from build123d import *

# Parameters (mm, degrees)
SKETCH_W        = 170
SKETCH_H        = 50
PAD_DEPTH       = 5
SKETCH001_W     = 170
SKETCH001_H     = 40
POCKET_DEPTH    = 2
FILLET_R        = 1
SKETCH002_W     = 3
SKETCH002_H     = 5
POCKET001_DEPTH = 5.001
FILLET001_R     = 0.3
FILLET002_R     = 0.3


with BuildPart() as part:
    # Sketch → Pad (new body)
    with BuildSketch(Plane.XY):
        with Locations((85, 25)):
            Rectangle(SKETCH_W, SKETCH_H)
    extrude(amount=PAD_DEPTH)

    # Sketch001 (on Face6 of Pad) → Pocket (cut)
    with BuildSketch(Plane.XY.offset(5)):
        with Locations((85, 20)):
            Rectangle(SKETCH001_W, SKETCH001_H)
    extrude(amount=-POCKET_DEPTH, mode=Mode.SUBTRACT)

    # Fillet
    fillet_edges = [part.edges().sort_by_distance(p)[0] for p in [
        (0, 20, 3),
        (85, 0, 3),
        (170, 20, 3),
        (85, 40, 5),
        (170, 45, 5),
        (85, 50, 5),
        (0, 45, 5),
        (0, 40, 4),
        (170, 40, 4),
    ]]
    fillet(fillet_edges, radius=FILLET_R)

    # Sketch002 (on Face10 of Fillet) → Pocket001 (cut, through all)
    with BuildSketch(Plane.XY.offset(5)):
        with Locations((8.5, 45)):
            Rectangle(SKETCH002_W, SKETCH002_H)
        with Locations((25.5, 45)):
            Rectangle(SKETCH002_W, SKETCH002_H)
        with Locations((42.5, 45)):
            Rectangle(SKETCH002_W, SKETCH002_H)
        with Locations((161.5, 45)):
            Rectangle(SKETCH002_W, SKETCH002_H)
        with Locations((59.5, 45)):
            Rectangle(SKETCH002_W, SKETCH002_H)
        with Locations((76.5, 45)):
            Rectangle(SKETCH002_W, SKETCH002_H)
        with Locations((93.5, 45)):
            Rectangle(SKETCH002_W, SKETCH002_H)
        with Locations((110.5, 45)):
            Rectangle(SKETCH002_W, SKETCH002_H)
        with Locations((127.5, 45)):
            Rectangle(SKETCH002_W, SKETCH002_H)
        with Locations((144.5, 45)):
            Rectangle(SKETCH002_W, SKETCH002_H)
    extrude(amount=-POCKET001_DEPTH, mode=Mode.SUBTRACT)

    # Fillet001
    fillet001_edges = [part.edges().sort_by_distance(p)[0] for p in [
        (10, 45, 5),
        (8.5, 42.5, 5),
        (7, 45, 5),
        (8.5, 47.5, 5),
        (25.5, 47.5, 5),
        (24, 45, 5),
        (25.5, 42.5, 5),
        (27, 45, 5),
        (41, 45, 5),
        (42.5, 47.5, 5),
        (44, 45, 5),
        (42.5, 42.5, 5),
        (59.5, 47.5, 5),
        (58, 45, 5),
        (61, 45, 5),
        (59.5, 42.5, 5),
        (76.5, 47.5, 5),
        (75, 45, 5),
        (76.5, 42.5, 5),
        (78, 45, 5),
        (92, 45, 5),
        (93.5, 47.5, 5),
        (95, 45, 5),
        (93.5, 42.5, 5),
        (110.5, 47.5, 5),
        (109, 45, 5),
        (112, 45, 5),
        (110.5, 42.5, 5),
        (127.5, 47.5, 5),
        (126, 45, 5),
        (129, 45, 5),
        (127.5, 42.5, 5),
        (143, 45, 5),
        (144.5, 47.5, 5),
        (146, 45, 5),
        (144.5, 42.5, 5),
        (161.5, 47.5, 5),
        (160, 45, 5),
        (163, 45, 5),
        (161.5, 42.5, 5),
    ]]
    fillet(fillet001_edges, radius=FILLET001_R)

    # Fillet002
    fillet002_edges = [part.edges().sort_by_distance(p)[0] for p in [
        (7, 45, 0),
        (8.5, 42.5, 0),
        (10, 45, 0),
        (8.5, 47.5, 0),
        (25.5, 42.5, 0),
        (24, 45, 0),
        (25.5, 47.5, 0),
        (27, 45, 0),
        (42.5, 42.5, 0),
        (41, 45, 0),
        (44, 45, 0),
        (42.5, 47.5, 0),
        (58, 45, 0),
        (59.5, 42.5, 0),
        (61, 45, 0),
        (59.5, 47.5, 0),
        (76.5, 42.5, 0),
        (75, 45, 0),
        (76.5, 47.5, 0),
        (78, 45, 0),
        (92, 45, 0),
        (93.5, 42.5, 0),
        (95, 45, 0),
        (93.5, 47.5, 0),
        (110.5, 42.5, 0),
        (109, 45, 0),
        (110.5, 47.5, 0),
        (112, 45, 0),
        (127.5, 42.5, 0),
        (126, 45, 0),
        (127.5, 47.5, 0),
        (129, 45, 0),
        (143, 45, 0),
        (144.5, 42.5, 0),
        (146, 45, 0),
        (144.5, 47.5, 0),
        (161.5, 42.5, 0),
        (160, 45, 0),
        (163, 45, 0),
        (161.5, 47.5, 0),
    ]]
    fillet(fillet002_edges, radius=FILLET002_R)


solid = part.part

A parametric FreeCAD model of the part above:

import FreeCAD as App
import Part
import Sketcher

V = App.Vector


def edges_at(feature, points):
    """Names of the edges that pass closest to the given points."""
    edges = feature.Shape.Edges
    near = lambda p: min(range(len(edges)), key=lambda i: edges[i].distToShape(Part.Vertex(*p))[0])
    return sorted({f"Edge{near(p) + 1}" for p in points})

doc = App.newDocument("Part")
body = doc.addObject("PartDesign::Body", "Body")

sketch1 = body.newObject("Sketcher::SketchObject", "Sketch")
sketch1.AttachmentSupport = (doc.getObject("XY_Plane"), [""])
sketch1.MapMode = "FlatFace"
sketch1.addGeometry([
    Part.LineSegment(V(0, 50, 0), V(0, 0, 0)),
    Part.LineSegment(V(0, 0, 0), V(170, 0, 0)),
    Part.LineSegment(V(170, 0, 0), V(170, 50, 0)),
    Part.LineSegment(V(170, 50, 0), V(0, 50, 0)),
], False)
sketch1.addConstraint([
    Sketcher.Constraint("Coincident", 0, 2, 1, 1),
    Sketcher.Constraint("Coincident", 1, 2, 2, 1),
    Sketcher.Constraint("Coincident", 2, 2, 3, 1),
    Sketcher.Constraint("Coincident", 3, 2, 0, 1),
    Sketcher.Constraint("Vertical", 0),
    Sketcher.Constraint("Horizontal", 1),
    Sketcher.Constraint("Vertical", 2),
    Sketcher.Constraint("Horizontal", 3),
    Sketcher.Constraint("Coincident", 0, 2, -1, 1),
    Sketcher.Constraint("DistanceX", 1, 1, 1, 2, 170.0),
    Sketcher.Constraint("DistanceY", 0, 2, 0, 1, 50.0),
])
pad1 = body.newObject("PartDesign::Pad", "Pad")
pad1.Profile = sketch1
pad1.Length = 5

sketch2 = body.newObject("Sketcher::SketchObject", "Sketch001")
sketch2.AttachmentSupport = (doc.getObject("XY_Plane"), [""])
sketch2.MapMode = "FlatFace"
sketch2.AttachmentOffset = App.Placement(V(0, 0, 5), App.Rotation())
sketch2.addGeometry([
    Part.LineSegment(V(0, 40, 0), V(0, 0, 0)),
    Part.LineSegment(V(0, 0, 0), V(170, 0, 0)),
    Part.LineSegment(V(170, 0, 0), V(170, 40, 0)),
    Part.LineSegment(V(170, 40, 0), V(0, 40, 0)),
], False)
sketch2.addConstraint([
    Sketcher.Constraint("Coincident", 0, 2, 1, 1),
    Sketcher.Constraint("Coincident", 1, 2, 2, 1),
    Sketcher.Constraint("Coincident", 2, 2, 3, 1),
    Sketcher.Constraint("Coincident", 3, 2, 0, 1),
    Sketcher.Constraint("Vertical", 0),
    Sketcher.Constraint("Horizontal", 1),
    Sketcher.Constraint("Vertical", 2),
    Sketcher.Constraint("Horizontal", 3),
    Sketcher.Constraint("Coincident", 0, 2, -1, 1),
    Sketcher.Constraint("DistanceX", 1, 1, 1, 2, 170.0),
    Sketcher.Constraint("DistanceY", 0, 2, 0, 1, 40.0),
])
pocket1 = body.newObject("PartDesign::Pocket", "Pocket")
pocket1.Profile = sketch2
pocket1.Length = 2
doc.recompute()

fillet = body.newObject("PartDesign::Fillet", "Fillet")
fillet.Base = (pocket1, edges_at(pocket1, [
    (0, 20, 3),
    (85, 0, 3),
    (170, 20, 3),
    (85, 40, 5),
    (170, 45, 5),
    (85, 50, 5),
    (0, 45, 5),
    (0, 40, 4),
    (170, 40, 4),
]))
fillet.Radius = 1

sketch3 = body.newObject("Sketcher::SketchObject", "Sketch002")
sketch3.AttachmentSupport = (doc.getObject("XY_Plane"), [""])
sketch3.MapMode = "FlatFace"
sketch3.AttachmentOffset = App.Placement(V(0, 0, 5), App.Rotation())
sketch3.addGeometry([
    Part.LineSegment(V(7, 47.5, 0), V(7, 42.5, 0)),
    Part.LineSegment(V(7, 42.5, 0), V(10, 42.5, 0)),
    Part.LineSegment(V(10, 42.5, 0), V(10, 47.5, 0)),
    Part.LineSegment(V(10, 47.5, 0), V(7, 47.5, 0)),
    Part.LineSegment(V(24, 47.5, 0), V(24, 42.5, 0)),
    Part.LineSegment(V(24, 42.5, 0), V(27, 42.5, 0)),
    Part.LineSegment(V(27, 42.5, 0), V(27, 47.5, 0)),
    Part.LineSegment(V(27, 47.5, 0), V(24, 47.5, 0)),
    Part.LineSegment(V(41, 47.5, 0), V(41, 42.5, 0)),
    Part.LineSegment(V(41, 42.5, 0), V(44, 42.5, 0)),
    Part.LineSegment(V(44, 42.5, 0), V(44, 47.5, 0)),
    Part.LineSegment(V(44, 47.5, 0), V(41, 47.5, 0)),
    Part.LineSegment(V(160, 47.5, 0), V(160, 42.5, 0)),
    Part.LineSegment(V(160, 42.5, 0), V(163, 42.5, 0)),
    Part.LineSegment(V(163, 42.5, 0), V(163, 47.5, 0)),
    Part.LineSegment(V(163, 47.5, 0), V(160, 47.5, 0)),
    Part.LineSegment(V(58, 47.5, 0), V(58, 42.5, 0)),
    Part.LineSegment(V(58, 42.5, 0), V(61, 42.5, 0)),
    Part.LineSegment(V(61, 42.5, 0), V(61, 47.5, 0)),
    Part.LineSegment(V(61, 47.5, 0), V(58, 47.5, 0)),
    Part.LineSegment(V(75, 47.5, 0), V(75, 42.5, 0)),
    Part.LineSegment(V(75, 42.5, 0), V(78, 42.5, 0)),
    Part.LineSegment(V(78, 42.5, 0), V(78, 47.5, 0)),
    Part.LineSegment(V(78, 47.5, 0), V(75, 47.5, 0)),
    Part.LineSegment(V(92, 47.5, 0), V(92, 42.5, 0)),
    Part.LineSegment(V(92, 42.5, 0), V(95, 42.5, 0)),
    Part.LineSegment(V(95, 42.5, 0), V(95, 47.5, 0)),
    Part.LineSegment(V(95, 47.5, 0), V(92, 47.5, 0)),
    Part.LineSegment(V(109, 47.5, 0), V(109, 42.5, 0)),
    Part.LineSegment(V(109, 42.5, 0), V(112, 42.5, 0)),
    Part.LineSegment(V(112, 42.5, 0), V(112, 47.5, 0)),
    Part.LineSegment(V(112, 47.5, 0), V(109, 47.5, 0)),
    Part.LineSegment(V(126, 47.5, 0), V(126, 42.5, 0)),
    Part.LineSegment(V(126, 42.5, 0), V(129, 42.5, 0)),
    Part.LineSegment(V(129, 42.5, 0), V(129, 47.5, 0)),
    Part.LineSegment(V(129, 47.5, 0), V(126, 47.5, 0)),
    Part.LineSegment(V(143, 47.5, 0), V(143, 42.5, 0)),
    Part.LineSegment(V(143, 42.5, 0), V(146, 42.5, 0)),
    Part.LineSegment(V(146, 42.5, 0), V(146, 47.5, 0)),
    Part.LineSegment(V(146, 47.5, 0), V(143, 47.5, 0)),
], False)
sketch3.addConstraint([
    Sketcher.Constraint("Coincident", 0, 2, 1, 1),
    Sketcher.Constraint("Coincident", 1, 2, 2, 1),
    Sketcher.Constraint("Coincident", 2, 2, 3, 1),
    Sketcher.Constraint("Coincident", 3, 2, 0, 1),
    Sketcher.Constraint("Coincident", 4, 2, 5, 1),
    Sketcher.Constraint("Coincident", 5, 2, 6, 1),
    Sketcher.Constraint("Coincident", 6, 2, 7, 1),
    Sketcher.Constraint("Coincident", 7, 2, 4, 1),
    Sketcher.Constraint("Coincident", 8, 2, 9, 1),
    Sketcher.Constraint("Coincident", 9, 2, 10, 1),
    Sketcher.Constraint("Coincident", 10, 2, 11, 1),
    Sketcher.Constraint("Coincident", 11, 2, 8, 1),
    Sketcher.Constraint("Coincident", 12, 2, 13, 1),
    Sketcher.Constraint("Coincident", 13, 2, 14, 1),
    Sketcher.Constraint("Coincident", 14, 2, 15, 1),
    Sketcher.Constraint("Coincident", 15, 2, 12, 1),
    Sketcher.Constraint("Coincident", 16, 2, 17, 1),
    Sketcher.Constraint("Coincident", 17, 2, 18, 1),
    Sketcher.Constraint("Coincident", 18, 2, 19, 1),
    Sketcher.Constraint("Coincident", 19, 2, 16, 1),
    Sketcher.Constraint("Coincident", 20, 2, 21, 1),
    Sketcher.Constraint("Coincident", 21, 2, 22, 1),
    Sketcher.Constraint("Coincident", 22, 2, 23, 1),
    Sketcher.Constraint("Coincident", 23, 2, 20, 1),
    Sketcher.Constraint("Coincident", 24, 2, 25, 1),
    Sketcher.Constraint("Coincident", 25, 2, 26, 1),
    Sketcher.Constraint("Coincident", 26, 2, 27, 1),
    Sketcher.Constraint("Coincident", 27, 2, 24, 1),
    Sketcher.Constraint("Coincident", 28, 2, 29, 1),
    Sketcher.Constraint("Coincident", 29, 2, 30, 1),
    Sketcher.Constraint("Coincident", 30, 2, 31, 1),
    Sketcher.Constraint("Coincident", 31, 2, 28, 1),
    Sketcher.Constraint("Coincident", 32, 2, 33, 1),
    Sketcher.Constraint("Coincident", 33, 2, 34, 1),
    Sketcher.Constraint("Coincident", 34, 2, 35, 1),
    Sketcher.Constraint("Coincident", 35, 2, 32, 1),
    Sketcher.Constraint("Coincident", 36, 2, 37, 1),
    Sketcher.Constraint("Coincident", 37, 2, 38, 1),
    Sketcher.Constraint("Coincident", 38, 2, 39, 1),
    Sketcher.Constraint("Coincident", 39, 2, 36, 1),
    Sketcher.Constraint("Vertical", 0),
    Sketcher.Constraint("Horizontal", 1),
    Sketcher.Constraint("Vertical", 2),
    Sketcher.Constraint("Horizontal", 3),
    Sketcher.Constraint("Vertical", 4),
    Sketcher.Constraint("Horizontal", 5),
    Sketcher.Constraint("Vertical", 6),
    Sketcher.Constraint("Horizontal", 7),
    Sketcher.Constraint("Vertical", 8),
    Sketcher.Constraint("Horizontal", 9),
    Sketcher.Constraint("Vertical", 10),
    Sketcher.Constraint("Horizontal", 11),
    Sketcher.Constraint("Vertical", 12),
    Sketcher.Constraint("Horizontal", 13),
    Sketcher.Constraint("Vertical", 14),
    Sketcher.Constraint("Horizontal", 15),
    Sketcher.Constraint("Vertical", 16),
    Sketcher.Constraint("Horizontal", 17),
    Sketcher.Constraint("Vertical", 18),
    Sketcher.Constraint("Horizontal", 19),
    Sketcher.Constraint("Vertical", 20),
    Sketcher.Constraint("Horizontal", 21),
    Sketcher.Constraint("Vertical", 22),
    Sketcher.Constraint("Horizontal", 23),
    Sketcher.Constraint("Vertical", 24),
    Sketcher.Constraint("Horizontal", 25),
    Sketcher.Constraint("Vertical", 26),
    Sketcher.Constraint("Horizontal", 27),
    Sketcher.Constraint("Vertical", 28),
    Sketcher.Constraint("Horizontal", 29),
    Sketcher.Constraint("Vertical", 30),
    Sketcher.Constraint("Horizontal", 31),
    Sketcher.Constraint("Vertical", 32),
    Sketcher.Constraint("Horizontal", 33),
    Sketcher.Constraint("Vertical", 34),
    Sketcher.Constraint("Horizontal", 35),
    Sketcher.Constraint("Vertical", 36),
    Sketcher.Constraint("Horizontal", 37),
    Sketcher.Constraint("Vertical", 38),
    Sketcher.Constraint("Horizontal", 39),
    Sketcher.Constraint("Horizontal", 1, 2, 4, 2),
    Sketcher.Constraint("Horizontal", 3, 2, 6, 2),
    Sketcher.Constraint("Horizontal", 5, 2, 8, 2),
    Sketcher.Constraint("Horizontal", 7, 2, 10, 2),
    Sketcher.Constraint("Horizontal", 9, 2, 12, 2),
    Sketcher.Constraint("Horizontal", 11, 2, 14, 2),
    Sketcher.Constraint("Horizontal", 13, 2, 16, 2),
    Sketcher.Constraint("Horizontal", 15, 2, 18, 2),
    Sketcher.Constraint("Horizontal", 17, 2, 20, 2),
    Sketcher.Constraint("Horizontal", 19, 2, 22, 2),
    Sketcher.Constraint("Horizontal", 21, 2, 24, 2),
    Sketcher.Constraint("Horizontal", 23, 2, 26, 2),
    Sketcher.Constraint("Horizontal", 25, 2, 28, 2),
    Sketcher.Constraint("Horizontal", 27, 2, 30, 2),
    Sketcher.Constraint("Horizontal", 29, 2, 32, 2),
    Sketcher.Constraint("Horizontal", 31, 2, 34, 2),
    Sketcher.Constraint("Horizontal", 33, 2, 36, 2),
    Sketcher.Constraint("Horizontal", 35, 2, 38, 2),
    Sketcher.Constraint("Equal", 3, 5),
    Sketcher.Constraint("Equal", 7, 9),
    Sketcher.Constraint("Equal", 11, 13),
    Sketcher.Constraint("Equal", 15, 17),
    Sketcher.Constraint("Equal", 19, 21),
    Sketcher.Constraint("Equal", 23, 25),
    Sketcher.Constraint("Equal", 27, 29),
    Sketcher.Constraint("Equal", 31, 33),
    Sketcher.Constraint("Equal", 35, 37),
    Sketcher.Constraint("DistanceX", 1, 1, 1, 2, 3.0),
    Sketcher.Constraint("DistanceY", 0, 2, 0, 1, 5.0),
    Sketcher.Constraint("DistanceX", -1, 1, 0, 2, 7.0),
    Sketcher.Constraint("DistanceX", -1, 1, 4, 2, 24.0),
    Sketcher.Constraint("DistanceX", -1, 1, 8, 2, 41.0),
    Sketcher.Constraint("DistanceX", -1, 1, 12, 2, 160.0),
    Sketcher.Constraint("DistanceX", -1, 1, 16, 2, 58.0),
    Sketcher.Constraint("DistanceX", -1, 1, 20, 2, 75.0),
    Sketcher.Constraint("DistanceX", -1, 1, 24, 2, 92.0),
    Sketcher.Constraint("DistanceX", -1, 1, 28, 2, 109.0),
    Sketcher.Constraint("DistanceX", -1, 1, 32, 2, 126.0),
    Sketcher.Constraint("DistanceX", -1, 1, 36, 2, 143.0),
    Sketcher.Constraint("DistanceY", -1, 1, 0, 2, 42.5),
])
pocket2 = body.newObject("PartDesign::Pocket", "Pocket001")
pocket2.Profile = sketch3
pocket2.Type = "ThroughAll"
doc.recompute()

fillet2 = body.newObject("PartDesign::Fillet", "Fillet001")
fillet2.Base = (pocket2, edges_at(pocket2, [
    (10, 45, 5),
    (8.5, 42.5, 5),
    (7, 45, 5),
    (8.5, 47.5, 5),
    (25.5, 47.5, 5),
    (24, 45, 5),
    (25.5, 42.5, 5),
    (27, 45, 5),
    (41, 45, 5),
    (42.5, 47.5, 5),
    (44, 45, 5),
    (42.5, 42.5, 5),
    (59.5, 47.5, 5),
    (58, 45, 5),
    (61, 45, 5),
    (59.5, 42.5, 5),
    (76.5, 47.5, 5),
    (75, 45, 5),
    (76.5, 42.5, 5),
    (78, 45, 5),
    (92, 45, 5),
    (93.5, 47.5, 5),
    (95, 45, 5),
    (93.5, 42.5, 5),
    (110.5, 47.5, 5),
    (109, 45, 5),
    (112, 45, 5),
    (110.5, 42.5, 5),
    (127.5, 47.5, 5),
    (126, 45, 5),
    (129, 45, 5),
    (127.5, 42.5, 5),
    (143, 45, 5),
    (144.5, 47.5, 5),
    (146, 45, 5),
    (144.5, 42.5, 5),
    (161.5, 47.5, 5),
    (160, 45, 5),
    (163, 45, 5),
    (161.5, 42.5, 5),
]))
fillet2.Radius = 0.3
doc.recompute()

fillet3 = body.newObject("PartDesign::Fillet", "Fillet002")
fillet3.Base = (fillet2, edges_at(fillet2, [
    (7, 45, 0),
    (8.5, 42.5, 0),
    (10, 45, 0),
    (8.5, 47.5, 0),
    (25.5, 42.5, 0),
    (24, 45, 0),
    (25.5, 47.5, 0),
    (27, 45, 0),
    (42.5, 42.5, 0),
    (41, 45, 0),
    (44, 45, 0),
    (42.5, 47.5, 0),
    (58, 45, 0),
    (59.5, 42.5, 0),
    (61, 45, 0),
    (59.5, 47.5, 0),
    (76.5, 42.5, 0),
    (75, 45, 0),
    (76.5, 47.5, 0),
    (78, 45, 0),
    (92, 45, 0),
    (93.5, 42.5, 0),
    (95, 45, 0),
    (93.5, 47.5, 0),
    (110.5, 42.5, 0),
    (109, 45, 0),
    (110.5, 47.5, 0),
    (112, 45, 0),
    (127.5, 42.5, 0),
    (126, 45, 0),
    (127.5, 47.5, 0),
    (129, 45, 0),
    (143, 45, 0),
    (144.5, 42.5, 0),
    (146, 45, 0),
    (144.5, 47.5, 0),
    (161.5, 42.5, 0),
    (160, 45, 0),
    (163, 45, 0),
    (161.5, 47.5, 0),
]))
fillet3.Radius = 0.3

doc.recompute()
